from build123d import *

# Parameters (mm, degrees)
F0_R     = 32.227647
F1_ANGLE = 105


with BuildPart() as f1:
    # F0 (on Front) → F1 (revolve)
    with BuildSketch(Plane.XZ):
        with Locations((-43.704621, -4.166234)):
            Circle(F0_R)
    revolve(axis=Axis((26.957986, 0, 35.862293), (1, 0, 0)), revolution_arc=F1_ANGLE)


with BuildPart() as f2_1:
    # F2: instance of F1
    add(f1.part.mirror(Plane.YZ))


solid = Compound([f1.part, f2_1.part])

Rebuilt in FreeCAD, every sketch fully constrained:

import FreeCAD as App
import Part
import Sketcher

V = App.Vector
Q = App.Units.Quantity

doc = App.newDocument("Part")
body = doc.addObject("PartDesign::Body", "Body")

sketch1 = doc.addObject("Sketcher::SketchObject", "Sketch")
body.addObject(sketch1)
sketch1.AttachmentSupport = (doc.XZ_Plane, [""])
sketch1.MapMode = "FlatFace"
sketch1.addGeometry(Part.Circle(V(-44, -4, 0), V(0, 0, 1), 32), False)
sketch1.addGeometry(Part.LineSegment(V(-44, 36, 0), V(-34, 36, 0)), True)
sketch1.addConstraint(Sketcher.Constraint("Horizontal", 1))
sketch1.addConstraint(Sketcher.Constraint("Vertical", 0, 3, 1, 1))
sketch1.addConstraint(Sketcher.Constraint("DistanceX", 1, 1, 1, 2, Q("10 mm")))
sketch1.addConstraint(Sketcher.Constraint("Diameter", 0, Q("64.455294 mm")))
sketch1.addConstraint(Sketcher.Constraint("DistanceX", 0, 3, -1, 1, Q("43.704621 mm")))
sketch1.addConstraint(Sketcher.Constraint("DistanceY", 0, 3, -1, 1, Q("4.166234 mm")))
sketch1.addConstraint(Sketcher.Constraint("DistanceY", -1, 1, 1, 1, Q("35.862293 mm")))
revolution = doc.addObject("PartDesign::Revolution", "Revolution")
body.addObject(revolution)
revolution.Profile = sketch1
revolution.ReferenceAxis = (sketch1, ["Axis0"])
revolution.Angle = 105
body2 = doc.addObject("PartDesign::Body", "Body001")
doc.recompute()

mirroring = doc.addObject("Part::Mirroring", "Mirroring")
mirroring.Source = body
mirroring.Base = V(0, 0, 0)
mirroring.Normal = V(1, 0, 0)
body2.BaseFeature = mirroring
doc.recompute()
mirroring.Visibility = False

doc.recompute()
